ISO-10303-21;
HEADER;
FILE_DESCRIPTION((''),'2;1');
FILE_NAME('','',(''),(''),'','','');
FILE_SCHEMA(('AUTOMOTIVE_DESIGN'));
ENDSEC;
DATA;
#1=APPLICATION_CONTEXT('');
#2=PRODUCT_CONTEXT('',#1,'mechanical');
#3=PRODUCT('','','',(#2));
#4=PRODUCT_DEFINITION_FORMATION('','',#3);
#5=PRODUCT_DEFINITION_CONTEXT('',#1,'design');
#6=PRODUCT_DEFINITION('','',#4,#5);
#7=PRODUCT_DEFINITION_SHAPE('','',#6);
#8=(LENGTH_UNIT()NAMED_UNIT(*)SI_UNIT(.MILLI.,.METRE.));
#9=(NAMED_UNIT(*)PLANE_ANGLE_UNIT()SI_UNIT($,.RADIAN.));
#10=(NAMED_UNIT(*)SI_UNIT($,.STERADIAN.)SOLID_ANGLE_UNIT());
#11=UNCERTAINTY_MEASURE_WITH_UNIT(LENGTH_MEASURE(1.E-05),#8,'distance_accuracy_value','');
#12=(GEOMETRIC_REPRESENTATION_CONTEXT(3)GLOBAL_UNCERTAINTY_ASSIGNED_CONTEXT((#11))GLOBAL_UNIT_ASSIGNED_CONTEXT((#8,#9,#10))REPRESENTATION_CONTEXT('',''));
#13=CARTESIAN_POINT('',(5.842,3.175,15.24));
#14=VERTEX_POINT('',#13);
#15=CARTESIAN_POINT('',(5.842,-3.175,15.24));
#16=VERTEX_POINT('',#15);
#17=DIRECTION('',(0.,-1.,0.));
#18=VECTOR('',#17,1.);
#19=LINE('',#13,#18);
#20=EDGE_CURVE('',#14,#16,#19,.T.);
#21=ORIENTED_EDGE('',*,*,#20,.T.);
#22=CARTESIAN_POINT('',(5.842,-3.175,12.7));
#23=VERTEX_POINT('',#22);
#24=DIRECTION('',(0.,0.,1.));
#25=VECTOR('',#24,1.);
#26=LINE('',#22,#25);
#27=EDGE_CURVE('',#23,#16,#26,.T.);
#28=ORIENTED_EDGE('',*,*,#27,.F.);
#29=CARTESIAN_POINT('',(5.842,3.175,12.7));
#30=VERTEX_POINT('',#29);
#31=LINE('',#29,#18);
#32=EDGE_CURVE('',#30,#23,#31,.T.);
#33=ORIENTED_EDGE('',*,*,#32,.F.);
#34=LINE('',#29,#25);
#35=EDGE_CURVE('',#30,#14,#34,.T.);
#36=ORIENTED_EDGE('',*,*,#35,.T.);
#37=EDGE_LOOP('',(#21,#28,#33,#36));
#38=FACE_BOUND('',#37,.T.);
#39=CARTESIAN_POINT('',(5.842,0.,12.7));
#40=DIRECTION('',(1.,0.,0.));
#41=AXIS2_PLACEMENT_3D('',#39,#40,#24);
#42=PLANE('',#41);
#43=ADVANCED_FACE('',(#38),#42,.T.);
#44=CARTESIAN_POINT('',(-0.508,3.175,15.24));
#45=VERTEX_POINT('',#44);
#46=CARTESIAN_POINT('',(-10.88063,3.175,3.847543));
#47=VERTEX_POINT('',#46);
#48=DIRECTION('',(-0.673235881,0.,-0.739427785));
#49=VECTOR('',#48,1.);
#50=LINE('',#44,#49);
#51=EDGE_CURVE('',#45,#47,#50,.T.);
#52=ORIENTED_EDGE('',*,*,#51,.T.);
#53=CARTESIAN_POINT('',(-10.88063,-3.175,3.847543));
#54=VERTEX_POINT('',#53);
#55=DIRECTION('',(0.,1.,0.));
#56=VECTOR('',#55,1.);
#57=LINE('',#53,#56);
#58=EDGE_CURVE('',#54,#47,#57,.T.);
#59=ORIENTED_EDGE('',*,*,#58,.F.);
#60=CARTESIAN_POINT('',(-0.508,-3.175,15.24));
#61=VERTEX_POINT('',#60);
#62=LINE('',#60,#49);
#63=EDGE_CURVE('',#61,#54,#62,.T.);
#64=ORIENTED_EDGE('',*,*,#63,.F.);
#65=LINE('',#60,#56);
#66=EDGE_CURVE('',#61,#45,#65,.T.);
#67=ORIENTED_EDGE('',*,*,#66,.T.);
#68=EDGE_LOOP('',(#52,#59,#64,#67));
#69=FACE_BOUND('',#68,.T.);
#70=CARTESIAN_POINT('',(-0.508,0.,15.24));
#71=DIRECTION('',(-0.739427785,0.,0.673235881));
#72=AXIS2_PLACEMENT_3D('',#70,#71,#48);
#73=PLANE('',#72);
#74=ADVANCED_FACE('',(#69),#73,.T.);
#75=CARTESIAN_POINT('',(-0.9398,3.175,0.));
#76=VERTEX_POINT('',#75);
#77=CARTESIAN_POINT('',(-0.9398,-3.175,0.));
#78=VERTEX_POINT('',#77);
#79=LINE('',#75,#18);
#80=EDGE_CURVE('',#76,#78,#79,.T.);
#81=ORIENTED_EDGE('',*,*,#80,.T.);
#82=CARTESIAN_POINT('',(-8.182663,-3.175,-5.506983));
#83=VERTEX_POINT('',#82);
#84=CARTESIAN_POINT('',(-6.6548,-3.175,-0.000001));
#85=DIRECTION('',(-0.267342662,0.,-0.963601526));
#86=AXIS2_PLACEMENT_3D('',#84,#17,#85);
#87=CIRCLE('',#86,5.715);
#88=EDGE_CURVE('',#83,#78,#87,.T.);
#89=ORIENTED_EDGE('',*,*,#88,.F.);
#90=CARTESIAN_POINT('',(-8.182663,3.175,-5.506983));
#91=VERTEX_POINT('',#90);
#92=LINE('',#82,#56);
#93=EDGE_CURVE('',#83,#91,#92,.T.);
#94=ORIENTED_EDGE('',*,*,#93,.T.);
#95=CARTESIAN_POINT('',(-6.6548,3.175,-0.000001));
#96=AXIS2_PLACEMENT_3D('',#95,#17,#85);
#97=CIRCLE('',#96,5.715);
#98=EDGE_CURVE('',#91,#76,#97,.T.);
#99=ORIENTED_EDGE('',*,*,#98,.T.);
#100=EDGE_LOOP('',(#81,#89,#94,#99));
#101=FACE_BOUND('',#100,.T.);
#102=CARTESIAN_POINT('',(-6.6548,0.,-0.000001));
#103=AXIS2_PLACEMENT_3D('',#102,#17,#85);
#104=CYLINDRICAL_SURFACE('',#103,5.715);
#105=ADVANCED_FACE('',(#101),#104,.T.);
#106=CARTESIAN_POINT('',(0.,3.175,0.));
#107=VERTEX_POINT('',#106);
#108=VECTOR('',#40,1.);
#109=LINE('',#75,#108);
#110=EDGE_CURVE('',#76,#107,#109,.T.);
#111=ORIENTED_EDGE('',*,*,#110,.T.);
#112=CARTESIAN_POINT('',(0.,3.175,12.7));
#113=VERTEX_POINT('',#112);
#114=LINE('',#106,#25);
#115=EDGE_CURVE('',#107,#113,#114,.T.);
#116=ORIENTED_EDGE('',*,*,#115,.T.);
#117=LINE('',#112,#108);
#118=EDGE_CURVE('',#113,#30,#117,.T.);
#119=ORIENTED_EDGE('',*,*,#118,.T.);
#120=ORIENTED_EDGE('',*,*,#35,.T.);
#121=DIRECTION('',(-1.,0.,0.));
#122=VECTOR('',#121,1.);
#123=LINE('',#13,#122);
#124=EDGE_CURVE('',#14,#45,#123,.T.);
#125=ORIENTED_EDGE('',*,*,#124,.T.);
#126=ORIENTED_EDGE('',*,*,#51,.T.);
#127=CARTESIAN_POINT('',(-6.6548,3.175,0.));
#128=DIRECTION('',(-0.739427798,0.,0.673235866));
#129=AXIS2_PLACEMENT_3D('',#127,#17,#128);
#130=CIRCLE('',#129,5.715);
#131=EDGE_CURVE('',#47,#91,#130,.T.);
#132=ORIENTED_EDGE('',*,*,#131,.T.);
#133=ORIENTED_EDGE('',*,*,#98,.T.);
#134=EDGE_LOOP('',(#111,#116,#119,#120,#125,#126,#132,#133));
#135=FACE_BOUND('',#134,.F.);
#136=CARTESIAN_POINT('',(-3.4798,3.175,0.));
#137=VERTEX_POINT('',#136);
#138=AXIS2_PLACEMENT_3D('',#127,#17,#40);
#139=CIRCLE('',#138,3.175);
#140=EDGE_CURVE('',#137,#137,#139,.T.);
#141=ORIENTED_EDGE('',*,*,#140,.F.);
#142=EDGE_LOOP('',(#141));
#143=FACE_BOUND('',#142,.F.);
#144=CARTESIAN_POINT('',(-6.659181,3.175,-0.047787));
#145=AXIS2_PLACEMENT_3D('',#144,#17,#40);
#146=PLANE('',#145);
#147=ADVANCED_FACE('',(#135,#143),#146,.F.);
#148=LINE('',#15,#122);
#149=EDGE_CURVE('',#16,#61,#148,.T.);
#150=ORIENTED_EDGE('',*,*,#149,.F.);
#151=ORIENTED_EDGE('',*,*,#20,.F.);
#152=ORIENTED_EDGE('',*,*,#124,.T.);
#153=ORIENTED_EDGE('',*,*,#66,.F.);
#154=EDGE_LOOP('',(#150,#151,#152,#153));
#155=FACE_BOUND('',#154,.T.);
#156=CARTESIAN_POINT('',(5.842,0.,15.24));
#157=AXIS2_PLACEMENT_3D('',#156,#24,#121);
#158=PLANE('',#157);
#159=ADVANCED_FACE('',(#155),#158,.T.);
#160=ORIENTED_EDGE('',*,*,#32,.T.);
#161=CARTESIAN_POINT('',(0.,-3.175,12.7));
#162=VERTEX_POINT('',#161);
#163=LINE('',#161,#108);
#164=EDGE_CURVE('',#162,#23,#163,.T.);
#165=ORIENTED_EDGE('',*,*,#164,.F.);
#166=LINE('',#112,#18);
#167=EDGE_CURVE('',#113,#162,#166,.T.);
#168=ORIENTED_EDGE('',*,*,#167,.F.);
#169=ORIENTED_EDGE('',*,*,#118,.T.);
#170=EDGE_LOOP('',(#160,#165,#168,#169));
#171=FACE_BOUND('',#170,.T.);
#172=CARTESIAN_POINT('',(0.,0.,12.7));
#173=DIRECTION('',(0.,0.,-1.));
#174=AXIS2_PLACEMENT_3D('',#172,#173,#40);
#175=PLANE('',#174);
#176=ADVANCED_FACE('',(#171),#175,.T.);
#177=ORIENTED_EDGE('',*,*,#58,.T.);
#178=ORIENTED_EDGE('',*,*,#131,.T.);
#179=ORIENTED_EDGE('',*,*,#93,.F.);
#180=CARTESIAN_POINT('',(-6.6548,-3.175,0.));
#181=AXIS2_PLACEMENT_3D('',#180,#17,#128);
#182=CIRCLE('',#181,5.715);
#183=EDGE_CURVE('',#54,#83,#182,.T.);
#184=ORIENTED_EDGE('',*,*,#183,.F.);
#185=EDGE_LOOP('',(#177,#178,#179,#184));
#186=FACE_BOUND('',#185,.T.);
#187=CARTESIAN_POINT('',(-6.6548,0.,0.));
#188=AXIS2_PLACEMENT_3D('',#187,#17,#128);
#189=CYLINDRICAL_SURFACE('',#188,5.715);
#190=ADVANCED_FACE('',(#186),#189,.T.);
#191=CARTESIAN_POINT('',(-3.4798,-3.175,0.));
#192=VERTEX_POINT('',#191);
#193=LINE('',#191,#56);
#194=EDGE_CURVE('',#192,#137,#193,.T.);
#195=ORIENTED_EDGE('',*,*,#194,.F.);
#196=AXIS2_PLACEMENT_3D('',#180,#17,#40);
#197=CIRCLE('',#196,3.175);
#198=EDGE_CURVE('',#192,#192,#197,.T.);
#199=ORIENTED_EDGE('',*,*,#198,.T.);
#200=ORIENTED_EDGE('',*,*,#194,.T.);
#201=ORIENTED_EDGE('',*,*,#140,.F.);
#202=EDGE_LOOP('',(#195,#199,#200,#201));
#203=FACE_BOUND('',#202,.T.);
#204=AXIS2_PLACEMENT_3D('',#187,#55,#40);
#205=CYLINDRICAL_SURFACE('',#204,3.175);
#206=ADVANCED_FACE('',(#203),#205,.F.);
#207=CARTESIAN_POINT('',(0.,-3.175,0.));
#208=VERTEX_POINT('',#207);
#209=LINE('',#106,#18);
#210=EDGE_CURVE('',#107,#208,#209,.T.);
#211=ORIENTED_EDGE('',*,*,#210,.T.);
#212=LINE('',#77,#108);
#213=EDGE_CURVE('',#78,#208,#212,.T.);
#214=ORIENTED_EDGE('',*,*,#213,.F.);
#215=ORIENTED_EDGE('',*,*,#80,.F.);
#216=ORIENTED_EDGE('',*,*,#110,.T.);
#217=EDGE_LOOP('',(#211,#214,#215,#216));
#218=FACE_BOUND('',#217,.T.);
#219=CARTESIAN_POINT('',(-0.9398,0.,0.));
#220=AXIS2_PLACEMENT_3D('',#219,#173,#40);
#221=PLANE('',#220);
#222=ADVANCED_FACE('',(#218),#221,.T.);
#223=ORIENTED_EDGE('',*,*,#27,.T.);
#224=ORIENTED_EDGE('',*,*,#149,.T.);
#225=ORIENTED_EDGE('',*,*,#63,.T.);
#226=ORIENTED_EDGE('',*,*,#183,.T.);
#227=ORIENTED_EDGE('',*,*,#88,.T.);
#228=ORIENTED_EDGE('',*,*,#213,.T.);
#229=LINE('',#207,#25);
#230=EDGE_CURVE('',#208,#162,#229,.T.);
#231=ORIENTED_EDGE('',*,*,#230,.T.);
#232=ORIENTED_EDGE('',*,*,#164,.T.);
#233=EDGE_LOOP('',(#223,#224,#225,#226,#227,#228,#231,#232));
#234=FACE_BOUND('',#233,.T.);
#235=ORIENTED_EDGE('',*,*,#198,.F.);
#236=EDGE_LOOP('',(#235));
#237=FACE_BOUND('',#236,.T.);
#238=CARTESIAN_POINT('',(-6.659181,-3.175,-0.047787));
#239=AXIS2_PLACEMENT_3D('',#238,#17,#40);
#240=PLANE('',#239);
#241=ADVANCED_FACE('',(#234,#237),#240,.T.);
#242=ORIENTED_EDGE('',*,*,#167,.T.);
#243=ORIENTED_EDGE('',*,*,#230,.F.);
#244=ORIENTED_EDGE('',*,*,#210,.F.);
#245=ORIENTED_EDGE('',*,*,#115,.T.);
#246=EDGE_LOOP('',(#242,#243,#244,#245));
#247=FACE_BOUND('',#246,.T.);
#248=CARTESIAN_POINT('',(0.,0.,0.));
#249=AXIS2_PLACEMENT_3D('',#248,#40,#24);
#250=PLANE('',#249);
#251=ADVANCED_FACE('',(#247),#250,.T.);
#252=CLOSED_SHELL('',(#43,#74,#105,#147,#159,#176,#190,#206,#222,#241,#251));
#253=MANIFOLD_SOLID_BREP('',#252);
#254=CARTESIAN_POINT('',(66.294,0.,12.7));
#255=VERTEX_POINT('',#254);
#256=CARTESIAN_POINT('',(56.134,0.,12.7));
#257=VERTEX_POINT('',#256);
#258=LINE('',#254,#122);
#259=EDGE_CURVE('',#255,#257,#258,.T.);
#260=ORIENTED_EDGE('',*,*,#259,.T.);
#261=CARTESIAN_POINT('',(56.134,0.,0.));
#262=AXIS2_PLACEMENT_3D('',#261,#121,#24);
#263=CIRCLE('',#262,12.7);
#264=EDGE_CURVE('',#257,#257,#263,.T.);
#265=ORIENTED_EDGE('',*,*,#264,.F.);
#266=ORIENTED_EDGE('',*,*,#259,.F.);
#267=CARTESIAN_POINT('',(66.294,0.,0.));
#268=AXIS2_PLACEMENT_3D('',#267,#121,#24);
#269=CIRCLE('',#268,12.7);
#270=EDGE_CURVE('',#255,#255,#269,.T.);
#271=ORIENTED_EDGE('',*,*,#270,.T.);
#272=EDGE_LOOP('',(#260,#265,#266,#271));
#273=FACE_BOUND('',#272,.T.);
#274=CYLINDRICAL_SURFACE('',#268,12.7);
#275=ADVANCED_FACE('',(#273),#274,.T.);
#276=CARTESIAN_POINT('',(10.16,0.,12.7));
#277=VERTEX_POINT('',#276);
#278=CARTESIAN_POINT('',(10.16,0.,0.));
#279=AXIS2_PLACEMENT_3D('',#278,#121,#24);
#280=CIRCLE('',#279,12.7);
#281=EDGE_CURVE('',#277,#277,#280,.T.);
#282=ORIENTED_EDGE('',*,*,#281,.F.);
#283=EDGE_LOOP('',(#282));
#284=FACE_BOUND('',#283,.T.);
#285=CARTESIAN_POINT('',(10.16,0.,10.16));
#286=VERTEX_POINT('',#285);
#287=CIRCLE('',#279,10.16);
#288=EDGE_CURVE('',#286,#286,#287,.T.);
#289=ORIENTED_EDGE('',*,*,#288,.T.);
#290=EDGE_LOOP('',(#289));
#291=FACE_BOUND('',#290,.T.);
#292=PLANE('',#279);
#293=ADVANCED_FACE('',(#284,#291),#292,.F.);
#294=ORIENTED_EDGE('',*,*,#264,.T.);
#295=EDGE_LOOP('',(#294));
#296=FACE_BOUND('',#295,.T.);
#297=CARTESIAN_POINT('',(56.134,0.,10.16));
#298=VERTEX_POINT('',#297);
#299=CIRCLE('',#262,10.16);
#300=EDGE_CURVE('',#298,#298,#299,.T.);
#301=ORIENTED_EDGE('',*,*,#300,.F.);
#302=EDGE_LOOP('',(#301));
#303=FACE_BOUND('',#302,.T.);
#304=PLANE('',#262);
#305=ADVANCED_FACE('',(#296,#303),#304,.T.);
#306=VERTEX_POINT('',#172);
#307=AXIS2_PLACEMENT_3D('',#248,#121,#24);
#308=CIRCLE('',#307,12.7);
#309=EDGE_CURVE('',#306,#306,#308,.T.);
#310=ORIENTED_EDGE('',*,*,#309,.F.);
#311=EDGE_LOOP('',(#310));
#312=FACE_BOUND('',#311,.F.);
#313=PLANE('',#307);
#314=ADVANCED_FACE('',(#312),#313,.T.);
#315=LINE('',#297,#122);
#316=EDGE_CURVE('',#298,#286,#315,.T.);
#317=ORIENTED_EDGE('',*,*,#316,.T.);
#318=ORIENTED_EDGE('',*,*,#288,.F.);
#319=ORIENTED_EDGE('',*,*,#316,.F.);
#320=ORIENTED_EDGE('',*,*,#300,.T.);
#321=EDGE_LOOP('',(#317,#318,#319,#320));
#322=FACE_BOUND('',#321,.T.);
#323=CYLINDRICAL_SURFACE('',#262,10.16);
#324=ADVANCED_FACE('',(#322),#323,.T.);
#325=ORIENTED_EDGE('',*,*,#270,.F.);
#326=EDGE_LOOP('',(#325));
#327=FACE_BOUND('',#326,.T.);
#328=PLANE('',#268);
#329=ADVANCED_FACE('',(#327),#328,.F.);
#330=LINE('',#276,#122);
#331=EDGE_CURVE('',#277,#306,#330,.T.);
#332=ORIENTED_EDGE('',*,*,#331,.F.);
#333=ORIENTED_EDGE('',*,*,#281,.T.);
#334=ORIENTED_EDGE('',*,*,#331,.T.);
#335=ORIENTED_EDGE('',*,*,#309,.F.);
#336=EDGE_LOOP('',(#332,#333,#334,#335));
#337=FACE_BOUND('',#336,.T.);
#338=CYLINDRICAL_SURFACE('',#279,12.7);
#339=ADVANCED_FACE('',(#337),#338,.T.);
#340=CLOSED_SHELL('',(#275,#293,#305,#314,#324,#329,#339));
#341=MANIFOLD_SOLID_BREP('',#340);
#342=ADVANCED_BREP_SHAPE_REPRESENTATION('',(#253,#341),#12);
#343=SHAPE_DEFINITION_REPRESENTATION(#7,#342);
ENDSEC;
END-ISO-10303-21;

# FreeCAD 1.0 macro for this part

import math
import FreeCAD as App
import Part
import Sketcher
from FreeCAD import Vector
Q = App.Units.Quantity


def add_polygon(sketch, points):
    """Adds a closed chain of lines whose ends are joined by coincident constraints."""
    first, n = sketch.GeometryCount, len(points)
    for a, b in zip(points, points[1:] + points[:1]):
        sketch.addGeometry(Part.LineSegment(App.Vector(*a, 0), App.Vector(*b, 0)), False)
    for i in range(n):
        sketch.addConstraint(Sketcher.Constraint("Coincident", first + i, 2, first + (i + 1) % n, 1))

doc = App.newDocument("Part")
body = doc.addObject("PartDesign::Body", "Body")

sketch1 = doc.addObject("Sketcher::SketchObject", "Sketch")
body.addObject(sketch1)
sketch1.AttachmentSupport = (doc.XZ_Plane, [""])
sketch1.MapMode = "FlatFace"
add_polygon(sketch1, [(0, 12.7), (0, 0), (66.3, 0), (66.3, 12.7), (56.1, 12.7), (56.1, 10.2), (10.2, 10.2), (10.2, 12.7)])
sketch1.addConstraint(Sketcher.Constraint("Vertical", 0))
sketch1.addConstraint(Sketcher.Constraint("Horizontal", 1))
sketch1.addConstraint(Sketcher.Constraint("Vertical", 2))
sketch1.addConstraint(Sketcher.Constraint("Horizontal", 3))
sketch1.addConstraint(Sketcher.Constraint("Vertical", 4))
sketch1.addConstraint(Sketcher.Constraint("Horizontal", 5))
sketch1.addConstraint(Sketcher.Constraint("Vertical", 6))
sketch1.addConstraint(Sketcher.Constraint("Horizontal", 7))
sketch1.addConstraint(Sketcher.Constraint("Coincident", 0, 2, -1, 1))
sketch1.addConstraint(Sketcher.Constraint("Horizontal", 3, 2, 6, 2))
sketch1.addConstraint(Sketcher.Constraint("Equal", 3, 7))
sketch1.addConstraint(Sketcher.Constraint("DistanceX", 3, 2, 3, 1, Q("0.4 in")))
sketch1.addConstraint(Sketcher.Constraint("DistanceY", 0, 2, 0, 1, Q("0.5 in")))
sketch1.addConstraint(Sketcher.Constraint("DistanceY", 4, 2, 4, 1, Q("0.1 in")))
sketch1.addConstraint(Sketcher.Constraint("DistanceX", 1, 1, 1, 2, Q("2.61 in")))
revolution = doc.addObject("PartDesign::Revolution", "Revolution")
body.addObject(revolution)
revolution.Profile = sketch1
revolution.ReferenceAxis = (sketch1, ["H_Axis"])
revolution.Angle = 360
body2 = doc.addObject("PartDesign::Body", "Body001")

sketch2 = doc.addObject("Sketcher::SketchObject", "Sketch001")
body2.addObject(sketch2)
sketch2.AttachmentSupport = (doc.getObject("XZ_Plane001"), [""])
sketch2.MapMode = "FlatFace"
sketch2.addGeometry(Part.ArcOfCircle(Part.Circle(Vector(-6.7, 0, 0), Vector(0, 0, 1), 5.7), math.radians(-106), math.radians(0)), False)
sketch2.addGeometry(Part.LineSegment(Vector(-0.9, 0, 0), Vector(0, 0, 0)), False)
sketch2.addGeometry(Part.LineSegment(Vector(0, 0, 0), Vector(0, 12.7, 0)), False)
sketch2.addGeometry(Part.LineSegment(Vector(0, 12.7, 0), Vector(5.8, 12.7, 0)), False)
sketch2.addGeometry(Part.LineSegment(Vector(5.8, 12.7, 0), Vector(5.8, 15.2, 0)), False)
sketch2.addGeometry(Part.LineSegment(Vector(5.8, 15.2, 0), Vector(-0.5, 15.2, 0)), False)
sketch2.addGeometry(Part.LineSegment(Vector(-0.5, 15.2, 0), Vector(-10.9, 3.8, 0)), False)
sketch2.addGeometry(Part.ArcOfCircle(Part.Circle(Vector(-6.7, 0, 0), Vector(0, 0, 1), 5.7), math.radians(138), math.radians(254)), False)
sketch2.addGeometry(Part.Circle(Vector(-6.7, 0, 0), Vector(0, 0, 1), 3.2), False)
sketch2.addConstraint(Sketcher.Constraint("Coincident", 0, 2, 1, 1))
sketch2.addConstraint(Sketcher.Constraint("Coincident", 1, 2, 2, 1))
sketch2.addConstraint(Sketcher.Constraint("Coincident", 2, 2, 3, 1))
sketch2.addConstraint(Sketcher.Constraint("Coincident", 3, 2, 4, 1))
sketch2.addConstraint(Sketcher.Constraint("Coincident", 4, 2, 5, 1))
sketch2.addConstraint(Sketcher.Constraint("Coincident", 5, 2, 6, 1))
sketch2.addConstraint(Sketcher.Constraint("Tangent", 6, 2, 7, 1))
sketch2.addConstraint(Sketcher.Constraint("Tangent", 7, 2, 0, 1))
sketch2.addConstraint(Sketcher.Constraint("Horizontal", 1))
sketch2.addConstraint(Sketcher.Constraint("Vertical", 2))
sketch2.addConstraint(Sketcher.Constraint("Horizontal", 3))
sketch2.addConstraint(Sketcher.Constraint("Vertical", 4))
sketch2.addConstraint(Sketcher.Constraint("Horizontal", 5))
sketch2.addConstraint(Sketcher.Constraint("Coincident", 1, 2, -1, 1))
sketch2.addConstraint(Sketcher.Constraint("Coincident", 8, 3, 0, 3))
sketch2.addConstraint(Sketcher.Constraint("Equal", 0, 7))
sketch2.addConstraint(Sketcher.Constraint("PointOnObject", 0, 3, -1))
sketch2.addConstraint(Sketcher.Constraint("Diameter", 8, Q("0.25 in")))
sketch2.addConstraint(Sketcher.Constraint("DistanceY", 2, 1, 2, 2, Q("0.5 in")))
sketch2.addConstraint(Sketcher.Constraint("DistanceY", 4, 1, 4, 2, Q("0.1 in")))
sketch2.addConstraint(Sketcher.Constraint("Radius", 0, Q("0.225 in")))
sketch2.addConstraint(Sketcher.Constraint("DistanceX", 3, 1, 3, 2, Q("0.23 in")))
sketch2.addConstraint(Sketcher.Constraint("DistanceX", 5, 2, 5, 1, Q("0.25 in")))
sketch2.addConstraint(Sketcher.Constraint("DistanceX", 1, 1, 1, 2, Q("0.037 in")))
sketch2.addConstraint(Sketcher.Constraint("DistanceX", 7, 2, -1, 1, Q("8.182663 mm")))
pad1 = doc.addObject("PartDesign::Pad", "Pad")
body2.addObject(pad1)
pad1.Profile = sketch2
pad1.Length = Q("0.25 in")
pad1.Midplane = True

doc.recompute()
